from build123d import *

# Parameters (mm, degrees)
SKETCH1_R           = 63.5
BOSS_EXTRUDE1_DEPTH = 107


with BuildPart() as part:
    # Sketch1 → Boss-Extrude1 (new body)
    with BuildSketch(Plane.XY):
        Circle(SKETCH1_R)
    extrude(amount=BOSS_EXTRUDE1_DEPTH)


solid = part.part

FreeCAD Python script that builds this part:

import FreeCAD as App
import Part
import Sketcher
from FreeCAD import Vector

doc = App.newDocument("Part")
params = doc.addObject("Spreadsheet::Sheet", "Params")
for row, (alias, value) in enumerate([
    ("sketch1_diameter", "127 mm"),
    ("pad1_length", "107 mm"),
], start=1):
    params.set(f"A{row}", alias)
    params.set(f"B{row}", "=" + value)
    params.setAlias(f"B{row}", alias)

body = doc.addObject("PartDesign::Body", "Body")

# Sketch on XY plane
sketch1 = body.newObject("Sketcher::SketchObject", "Sketch")
sketch1.AttachmentSupport = (doc.getObject("XY_Plane"), [""])
sketch1.MapMode = "FlatFace"
sketch1.addGeometry(Part.Circle(Vector(0, 0, 0), Vector(0, 0, 1), 64), False)
sketch1.addConstraint(Sketcher.Constraint("Coincident", 0, 3, -1, 1))
sketch1.addConstraint(Sketcher.Constraint("Diameter", 0, 127.0))
sketch1.setExpression("Constraints[1]", "Params.sketch1_diameter")
pad1 = body.newObject("PartDesign::Pad", "Pad")
pad1.Profile = sketch1
pad1.setExpression("Length", "Params.pad1_length")

doc.recompute()
